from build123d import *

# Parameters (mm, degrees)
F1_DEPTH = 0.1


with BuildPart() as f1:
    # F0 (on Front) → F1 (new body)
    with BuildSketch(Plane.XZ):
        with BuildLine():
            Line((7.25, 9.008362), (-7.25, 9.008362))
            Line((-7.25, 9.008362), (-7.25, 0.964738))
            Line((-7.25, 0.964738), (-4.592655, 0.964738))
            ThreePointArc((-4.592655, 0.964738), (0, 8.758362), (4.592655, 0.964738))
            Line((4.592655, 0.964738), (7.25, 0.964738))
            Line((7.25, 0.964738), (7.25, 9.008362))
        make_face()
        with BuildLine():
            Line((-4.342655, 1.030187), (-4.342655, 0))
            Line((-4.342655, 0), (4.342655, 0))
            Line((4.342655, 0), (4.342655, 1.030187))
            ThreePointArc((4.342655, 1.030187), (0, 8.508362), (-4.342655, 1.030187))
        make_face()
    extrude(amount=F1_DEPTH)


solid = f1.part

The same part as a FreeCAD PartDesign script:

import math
import FreeCAD as App
import Part
import Sketcher

V = App.Vector
Q = App.Units.Quantity

doc = App.newDocument("Part")
body = doc.addObject("PartDesign::Body", "Body")
body.AllowCompound = True

# Sketch on XZ plane
sketch1 = body.newObject("Sketcher::SketchObject", "Sketch")
sketch1.AttachmentSupport = (doc.getObject("XZ_Plane"), [""])
sketch1.MapMode = "FlatFace"
sketch1.addGeometry([
    Part.LineSegment(V(7.25, 9.008362, 0), V(-7.25, 9.008362, 0)),  # 0
    Part.LineSegment(V(-7.25, 9.008362, 0), V(-7.25, 0.964738, 0)),  # 1
    Part.LineSegment(V(-7.25, 0.964738, 0), V(-4.592655, 0.964738, 0)),  # 2
    Part.ArcOfCircle(Part.Circle(V(0, 3.508362, 0), V(0, 0, 1), 5.25), math.radians(-28.979703), math.radians(208.979703)),  # 3
    Part.LineSegment(V(4.592655, 0.964738, 0), V(7.25, 0.964738, 0)),  # 4
    Part.LineSegment(V(7.25, 0.964738, 0), V(7.25, 9.008362, 0)),  # 5
    Part.LineSegment(V(-4.342655, 1.030187, 0), V(-4.342655, 0, 0)),  # 6
    Part.LineSegment(V(-4.342655, 0, 0), V(4.342655, 0, 0)),  # 7
    Part.LineSegment(V(4.342655, 0, 0), V(4.342655, 1.030187, 0)),  # 8
    Part.ArcOfCircle(Part.Circle(V(0, 3.508362, 0), V(0, 0, 1), 5), math.radians(-29.711627), math.radians(209.711627)),  # 9
], False)
sketch1.addConstraint([
    Sketcher.Constraint("Coincident", 0, 2, 1, 1),
    Sketcher.Constraint("Coincident", 1, 2, 2, 1),
    Sketcher.Constraint("Coincident", 2, 2, 3, 2),
    Sketcher.Constraint("Coincident", 3, 1, 4, 1),
    Sketcher.Constraint("Coincident", 4, 2, 5, 1),
    Sketcher.Constraint("Coincident", 5, 2, 0, 1),
    Sketcher.Constraint("Coincident", 6, 2, 7, 1),
    Sketcher.Constraint("Coincident", 7, 2, 8, 1),
    Sketcher.Constraint("Coincident", 8, 2, 9, 1),
    Sketcher.Constraint("Coincident", 9, 2, 6, 1),
    Sketcher.Constraint("Horizontal", 0),
    Sketcher.Constraint("Vertical", 1),
    Sketcher.Constraint("Horizontal", 2),
    Sketcher.Constraint("Horizontal", 4),
    Sketcher.Constraint("Vertical", 5),
    Sketcher.Constraint("Vertical", 6),
    Sketcher.Constraint("Horizontal", 7),
    Sketcher.Constraint("Vertical", 8),
    Sketcher.Constraint("Coincident", 9, 3, 3, 3),
    Sketcher.Constraint("Symmetric", 6, 2, 7, 2, -1, 1),
    Sketcher.Constraint("Symmetric", 2, 2, 3, 1, -2),
    Sketcher.Constraint("Equal", 2, 4),
    Sketcher.Constraint("Radius", 9, Q("5 mm")),
    Sketcher.Constraint("Radius", 3, Q("5.25 mm")),
    Sketcher.Constraint("DistanceX", 0, 2, 0, 1, Q("14.5 mm")),
    Sketcher.Constraint("DistanceY", 3, 3, 0, 2, Q("5.5 mm")),
    Sketcher.Constraint("DistanceX", 2, 2, 6, 2, Q("0.25 mm")),
    Sketcher.Constraint("DistanceX", 7, 1, 7, 2, Q("8.68531 mm")),
    Sketcher.Constraint("DistanceY", 6, 2, 6, 1, Q("1.030187 mm")),
])
pad1 = body.newObject("PartDesign::Pad", "Pad")
pad1.Profile = sketch1
pad1.Length = 0.1

doc.recompute()
